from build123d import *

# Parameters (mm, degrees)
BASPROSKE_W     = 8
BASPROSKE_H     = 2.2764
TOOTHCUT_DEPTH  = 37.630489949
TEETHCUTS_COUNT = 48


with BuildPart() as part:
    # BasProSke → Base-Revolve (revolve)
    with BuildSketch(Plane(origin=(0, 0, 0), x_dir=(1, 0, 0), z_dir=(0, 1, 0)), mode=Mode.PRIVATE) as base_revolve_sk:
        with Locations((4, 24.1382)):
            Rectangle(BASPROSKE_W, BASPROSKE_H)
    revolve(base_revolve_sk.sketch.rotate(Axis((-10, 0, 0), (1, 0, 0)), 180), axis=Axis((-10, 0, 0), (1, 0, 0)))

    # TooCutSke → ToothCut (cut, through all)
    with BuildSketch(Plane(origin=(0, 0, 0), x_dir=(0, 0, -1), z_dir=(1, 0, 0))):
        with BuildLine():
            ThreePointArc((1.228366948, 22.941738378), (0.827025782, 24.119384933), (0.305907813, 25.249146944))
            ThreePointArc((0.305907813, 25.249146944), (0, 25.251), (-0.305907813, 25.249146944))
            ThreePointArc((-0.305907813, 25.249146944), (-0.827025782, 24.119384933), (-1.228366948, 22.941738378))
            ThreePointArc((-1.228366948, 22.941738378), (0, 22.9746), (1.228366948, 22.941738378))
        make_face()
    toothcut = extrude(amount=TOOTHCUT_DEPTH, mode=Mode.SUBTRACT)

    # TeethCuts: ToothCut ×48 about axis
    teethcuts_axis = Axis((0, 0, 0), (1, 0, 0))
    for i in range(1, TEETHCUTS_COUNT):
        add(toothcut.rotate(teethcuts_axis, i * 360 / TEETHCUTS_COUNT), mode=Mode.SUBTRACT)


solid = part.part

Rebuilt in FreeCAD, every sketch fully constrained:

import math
import FreeCAD as App
import Part
import Sketcher


def add_polygon(sketch, points):
    """Adds a closed chain of lines whose ends are joined by coincident constraints."""
    first, n = sketch.GeometryCount, len(points)
    for a, b in zip(points, points[1:] + points[:1]):
        sketch.addGeometry(Part.LineSegment(App.Vector(*a, 0), App.Vector(*b, 0)), False)
    for i in range(n):
        sketch.addConstraint(Sketcher.Constraint("Coincident", first + i, 2, first + (i + 1) % n, 1))

doc = App.newDocument("Part")
body = doc.addObject("PartDesign::Body", "Body")

# Sketch on XZ plane
sketch1 = body.newObject("Sketcher::SketchObject", "Sketch")
sketch1.AttachmentSupport = (doc.getObject("XZ_Plane"), [""])
sketch1.MapMode = "FlatFace"
add_polygon(sketch1, [(0, -25.3), (0, -23), (8, -23), (8, -25.3)])  # lines 0-3
sketch1.addConstraint([
    Sketcher.Constraint("Vertical", 0),
    Sketcher.Constraint("Horizontal", 1),
    Sketcher.Constraint("Vertical", 2),
    Sketcher.Constraint("Horizontal", 3),
    Sketcher.Constraint("PointOnObject", 0, 2, -2),
    Sketcher.Constraint("DistanceX", 1, 1, 1, 2, 8.0),
    Sketcher.Constraint("DistanceY", 0, 2, -1, 1, 23.0),
    Sketcher.Constraint("DistanceY", 0, 1, 0, 2, 2.2764),
])
revolution = body.newObject("PartDesign::Revolution", "Revolution")
revolution.Profile = sketch1
revolution.ReferenceAxis = (sketch1, ["H_Axis"])
revolution.Angle = 360

# Sketch on YZ plane
sketch2 = body.newObject("Sketcher::SketchObject", "Sketch001")
sketch2.AttachmentSupport = (doc.getObject("YZ_Plane"), [""])
sketch2.MapMode = "FlatFace"
sketch2.addGeometry([
    Part.ArcOfCircle(Part.Circle(App.Vector(19.7, 10.3, 0), App.Vector(0, 0, 1), 12), math.radians(-74.15), math.radians(-62.27)),
    Part.ArcOfCircle(Part.Circle(App.Vector(0, 0, 0), App.Vector(0, 0, 1), 25.3), math.radians(-0.69), math.radians(0.69)),
    Part.ArcOfCircle(Part.Circle(App.Vector(19.7, -10.3, 0), App.Vector(0, 0, 1), 12), math.radians(62.27), math.radians(74.15)),
    Part.ArcOfCircle(Part.Circle(App.Vector(0, 0, 0), App.Vector(0, 0, 1), 23), math.radians(-3.06), math.radians(3.06)),
], False)
sketch2.addConstraint([
    Sketcher.Constraint("Coincident", 0, 2, 1, 1),
    Sketcher.Constraint("Coincident", 1, 2, 2, 1),
    Sketcher.Constraint("Coincident", 2, 2, 3, 2),
    Sketcher.Constraint("Coincident", 3, 1, 0, 1),
    Sketcher.Constraint("Coincident", 1, 3, -1, 1),
    Sketcher.Constraint("Coincident", 3, 3, -1, 1),
    Sketcher.Constraint("Equal", 0, 2),
    Sketcher.Constraint("Symmetric", 0, 3, 2, 3, -1),
    Sketcher.Constraint("Radius", 0, 12.0),
    Sketcher.Constraint("Radius", 3, 22.9746),
    Sketcher.Constraint("Radius", 1, 25.250997),
    Sketcher.Constraint("DistanceY", 2, 3, 2, 2, 11.543901),
    Sketcher.Constraint("DistanceX", -1, 1, 2, 2, 22.941738),
])
pocket1 = body.newObject("PartDesign::Pocket", "Pocket")
pocket1.Profile = sketch2
pocket1.Type = "ThroughAll"
pocket1.Reversed = True
doc.recompute()

polarpattern = body.newObject("PartDesign::PolarPattern", "PolarPattern")
polarpattern.Originals = [pocket1]
polarpattern.Axis = (doc.getObject("X_Axis"), [""])
polarpattern.Angle = 360
polarpattern.Occurrences = 48
body.Tip = polarpattern

doc.recompute()
